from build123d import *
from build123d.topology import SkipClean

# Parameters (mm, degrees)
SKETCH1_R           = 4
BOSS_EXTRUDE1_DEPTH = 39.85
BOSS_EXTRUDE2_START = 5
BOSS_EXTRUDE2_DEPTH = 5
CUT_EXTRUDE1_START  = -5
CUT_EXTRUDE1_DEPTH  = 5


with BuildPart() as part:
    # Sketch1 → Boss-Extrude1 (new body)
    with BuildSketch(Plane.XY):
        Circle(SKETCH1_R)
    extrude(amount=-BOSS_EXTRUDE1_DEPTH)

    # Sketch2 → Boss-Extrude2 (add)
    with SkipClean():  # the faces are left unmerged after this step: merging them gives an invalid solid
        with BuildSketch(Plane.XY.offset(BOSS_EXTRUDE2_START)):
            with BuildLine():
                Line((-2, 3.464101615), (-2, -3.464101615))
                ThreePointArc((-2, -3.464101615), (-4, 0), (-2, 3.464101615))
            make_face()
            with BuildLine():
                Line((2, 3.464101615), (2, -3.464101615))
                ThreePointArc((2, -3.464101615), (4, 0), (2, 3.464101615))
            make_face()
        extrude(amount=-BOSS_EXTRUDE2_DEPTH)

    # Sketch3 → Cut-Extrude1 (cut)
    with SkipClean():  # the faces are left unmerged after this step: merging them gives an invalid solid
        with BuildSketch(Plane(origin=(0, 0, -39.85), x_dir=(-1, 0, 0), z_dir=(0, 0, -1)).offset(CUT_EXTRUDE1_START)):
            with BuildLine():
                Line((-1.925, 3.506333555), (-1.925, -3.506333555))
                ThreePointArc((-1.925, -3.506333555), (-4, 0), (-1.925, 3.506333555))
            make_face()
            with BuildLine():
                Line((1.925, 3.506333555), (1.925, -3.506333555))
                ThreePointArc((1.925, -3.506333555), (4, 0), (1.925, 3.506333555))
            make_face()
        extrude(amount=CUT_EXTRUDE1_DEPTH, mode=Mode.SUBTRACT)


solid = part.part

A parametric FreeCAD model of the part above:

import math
import FreeCAD as App
import Part
import Sketcher

V = App.Vector

doc = App.newDocument("Part")
params = doc.addObject("Spreadsheet::Sheet", "Params")
for row, (alias, value) in enumerate([
    ("sketch1_diameter", "8 mm"),
    ("pad1_length", "39.85 mm"),
    ("sketch2_radius", "4 mm"),
    ("pad2_length", "5 mm"),
    ("sketch3_radius", "4 mm"),
    ("pocket1_length", "5 mm"),
], start=1):
    params.set(f"A{row}", alias)
    params.set(f"B{row}", "=" + value)
    params.setAlias(f"B{row}", alias)

body = doc.addObject("PartDesign::Body", "Body")

# Sketch on XY plane
sketch1 = body.newObject("Sketcher::SketchObject", "Sketch")
sketch1.AttachmentSupport = (doc.getObject("XY_Plane"), [""])
sketch1.MapMode = "FlatFace"
sketch1.addGeometry(Part.Circle(V(0, 0, 0), V(0, 0, 1), 4), False)
sketch1.addConstraint(Sketcher.Constraint("Coincident", 0, 3, -1, 1))
sketch1.addConstraint(Sketcher.Constraint("Diameter", 0, 8.0))
sketch1.setExpression("Constraints[1]", "Params.sketch1_diameter")
pad1 = body.newObject("PartDesign::Pad", "Pad")
pad1.Profile = sketch1
pad1.setExpression("Length", "Params.pad1_length")
pad1.Reversed = True

# Sketch on XY plane
sketch2 = body.newObject("Sketcher::SketchObject", "Sketch001")
sketch2.AttachmentSupport = (doc.getObject("XY_Plane"), [""])
sketch2.MapMode = "FlatFace"
sketch2.AttachmentOffset = App.Placement(V(0, 0, 5), App.Rotation())
sketch2.addGeometry(Part.LineSegment(V(-2, -3.5, 0), V(-2, 3.5, 0)), False)
sketch2.addGeometry(Part.ArcOfCircle(Part.Circle(V(0, 0, 0), V(0, 0, 1), 4), math.radians(120), math.radians(240)), False)
sketch2.addGeometry(Part.LineSegment(V(2, 3.5, 0), V(2, -3.5, 0)), False)
sketch2.addGeometry(Part.ArcOfCircle(Part.Circle(V(0, 0, 0), V(0, 0, 1), 4), math.radians(-60), math.radians(60)), False)
sketch2.addConstraint(Sketcher.Constraint("Coincident", 0, 1, 1, 2))
sketch2.addConstraint(Sketcher.Constraint("Coincident", 1, 1, 0, 2))
sketch2.addConstraint(Sketcher.Constraint("Coincident", 2, 1, 3, 2))
sketch2.addConstraint(Sketcher.Constraint("Coincident", 3, 1, 2, 2))
sketch2.addConstraint(Sketcher.Constraint("Vertical", 0))
sketch2.addConstraint(Sketcher.Constraint("Vertical", 2))
sketch2.addConstraint(Sketcher.Constraint("Coincident", 1, 3, -1, 1))
sketch2.addConstraint(Sketcher.Constraint("Coincident", 3, 3, -1, 1))
sketch2.addConstraint(Sketcher.Constraint("Equal", 1, 3))
sketch2.addConstraint(Sketcher.Constraint("Horizontal", 1, 1, 2, 1))
sketch2.addConstraint(Sketcher.Constraint("Radius", 1, 4.0))
sketch2.addConstraint(Sketcher.Constraint("DistanceX", 0, 1, -1, 1, 2.0))
sketch2.setExpression("Constraints[10]", "Params.sketch2_radius")
pad2 = body.newObject("PartDesign::Pad", "Pad001")
pad2.Profile = sketch2
pad2.setExpression("Length", "Params.pad2_length")
pad2.Reversed = True

# Sketch on XY plane
sketch3 = body.newObject("Sketcher::SketchObject", "Sketch002")
sketch3.AttachmentSupport = (doc.getObject("XY_Plane"), [""])
sketch3.MapMode = "FlatFace"
sketch3.AttachmentOffset = App.Placement(V(0, 0, -34.85), App.Rotation())
sketch3.addGeometry(Part.LineSegment(V(1.9, -3.5, 0), V(1.9, 3.5, 0)), False)
sketch3.addGeometry(Part.ArcOfCircle(Part.Circle(V(0, 0, 0), V(0, 0, 1), 4), math.radians(-61), math.radians(61)), False)
sketch3.addGeometry(Part.LineSegment(V(-1.9, 3.5, 0), V(-1.9, -3.5, 0)), False)
sketch3.addGeometry(Part.ArcOfCircle(Part.Circle(V(0, 0, 0), V(0, 0, 1), 4), math.radians(119), math.radians(241)), False)
sketch3.addConstraint(Sketcher.Constraint("Coincident", 0, 1, 1, 1))
sketch3.addConstraint(Sketcher.Constraint("Coincident", 1, 2, 0, 2))
sketch3.addConstraint(Sketcher.Constraint("Coincident", 2, 1, 3, 1))
sketch3.addConstraint(Sketcher.Constraint("Coincident", 3, 2, 2, 2))
sketch3.addConstraint(Sketcher.Constraint("Vertical", 0))
sketch3.addConstraint(Sketcher.Constraint("Vertical", 2))
sketch3.addConstraint(Sketcher.Constraint("Coincident", 1, 3, -1, 1))
sketch3.addConstraint(Sketcher.Constraint("Coincident", 3, 3, -1, 1))
sketch3.addConstraint(Sketcher.Constraint("Equal", 1, 3))
sketch3.addConstraint(Sketcher.Constraint("Horizontal", 1, 2, 2, 1))
sketch3.addConstraint(Sketcher.Constraint("Radius", 1, 4.0))
sketch3.addConstraint(Sketcher.Constraint("DistanceX", 2, 1, 1, 2, 3.85))
sketch3.setExpression("Constraints[10]", "Params.sketch3_radius")
pocket1 = body.newObject("PartDesign::Pocket", "Pocket")
pocket1.Profile = sketch3
pocket1.setExpression("Length", "Params.pocket1_length")

doc.recompute()
